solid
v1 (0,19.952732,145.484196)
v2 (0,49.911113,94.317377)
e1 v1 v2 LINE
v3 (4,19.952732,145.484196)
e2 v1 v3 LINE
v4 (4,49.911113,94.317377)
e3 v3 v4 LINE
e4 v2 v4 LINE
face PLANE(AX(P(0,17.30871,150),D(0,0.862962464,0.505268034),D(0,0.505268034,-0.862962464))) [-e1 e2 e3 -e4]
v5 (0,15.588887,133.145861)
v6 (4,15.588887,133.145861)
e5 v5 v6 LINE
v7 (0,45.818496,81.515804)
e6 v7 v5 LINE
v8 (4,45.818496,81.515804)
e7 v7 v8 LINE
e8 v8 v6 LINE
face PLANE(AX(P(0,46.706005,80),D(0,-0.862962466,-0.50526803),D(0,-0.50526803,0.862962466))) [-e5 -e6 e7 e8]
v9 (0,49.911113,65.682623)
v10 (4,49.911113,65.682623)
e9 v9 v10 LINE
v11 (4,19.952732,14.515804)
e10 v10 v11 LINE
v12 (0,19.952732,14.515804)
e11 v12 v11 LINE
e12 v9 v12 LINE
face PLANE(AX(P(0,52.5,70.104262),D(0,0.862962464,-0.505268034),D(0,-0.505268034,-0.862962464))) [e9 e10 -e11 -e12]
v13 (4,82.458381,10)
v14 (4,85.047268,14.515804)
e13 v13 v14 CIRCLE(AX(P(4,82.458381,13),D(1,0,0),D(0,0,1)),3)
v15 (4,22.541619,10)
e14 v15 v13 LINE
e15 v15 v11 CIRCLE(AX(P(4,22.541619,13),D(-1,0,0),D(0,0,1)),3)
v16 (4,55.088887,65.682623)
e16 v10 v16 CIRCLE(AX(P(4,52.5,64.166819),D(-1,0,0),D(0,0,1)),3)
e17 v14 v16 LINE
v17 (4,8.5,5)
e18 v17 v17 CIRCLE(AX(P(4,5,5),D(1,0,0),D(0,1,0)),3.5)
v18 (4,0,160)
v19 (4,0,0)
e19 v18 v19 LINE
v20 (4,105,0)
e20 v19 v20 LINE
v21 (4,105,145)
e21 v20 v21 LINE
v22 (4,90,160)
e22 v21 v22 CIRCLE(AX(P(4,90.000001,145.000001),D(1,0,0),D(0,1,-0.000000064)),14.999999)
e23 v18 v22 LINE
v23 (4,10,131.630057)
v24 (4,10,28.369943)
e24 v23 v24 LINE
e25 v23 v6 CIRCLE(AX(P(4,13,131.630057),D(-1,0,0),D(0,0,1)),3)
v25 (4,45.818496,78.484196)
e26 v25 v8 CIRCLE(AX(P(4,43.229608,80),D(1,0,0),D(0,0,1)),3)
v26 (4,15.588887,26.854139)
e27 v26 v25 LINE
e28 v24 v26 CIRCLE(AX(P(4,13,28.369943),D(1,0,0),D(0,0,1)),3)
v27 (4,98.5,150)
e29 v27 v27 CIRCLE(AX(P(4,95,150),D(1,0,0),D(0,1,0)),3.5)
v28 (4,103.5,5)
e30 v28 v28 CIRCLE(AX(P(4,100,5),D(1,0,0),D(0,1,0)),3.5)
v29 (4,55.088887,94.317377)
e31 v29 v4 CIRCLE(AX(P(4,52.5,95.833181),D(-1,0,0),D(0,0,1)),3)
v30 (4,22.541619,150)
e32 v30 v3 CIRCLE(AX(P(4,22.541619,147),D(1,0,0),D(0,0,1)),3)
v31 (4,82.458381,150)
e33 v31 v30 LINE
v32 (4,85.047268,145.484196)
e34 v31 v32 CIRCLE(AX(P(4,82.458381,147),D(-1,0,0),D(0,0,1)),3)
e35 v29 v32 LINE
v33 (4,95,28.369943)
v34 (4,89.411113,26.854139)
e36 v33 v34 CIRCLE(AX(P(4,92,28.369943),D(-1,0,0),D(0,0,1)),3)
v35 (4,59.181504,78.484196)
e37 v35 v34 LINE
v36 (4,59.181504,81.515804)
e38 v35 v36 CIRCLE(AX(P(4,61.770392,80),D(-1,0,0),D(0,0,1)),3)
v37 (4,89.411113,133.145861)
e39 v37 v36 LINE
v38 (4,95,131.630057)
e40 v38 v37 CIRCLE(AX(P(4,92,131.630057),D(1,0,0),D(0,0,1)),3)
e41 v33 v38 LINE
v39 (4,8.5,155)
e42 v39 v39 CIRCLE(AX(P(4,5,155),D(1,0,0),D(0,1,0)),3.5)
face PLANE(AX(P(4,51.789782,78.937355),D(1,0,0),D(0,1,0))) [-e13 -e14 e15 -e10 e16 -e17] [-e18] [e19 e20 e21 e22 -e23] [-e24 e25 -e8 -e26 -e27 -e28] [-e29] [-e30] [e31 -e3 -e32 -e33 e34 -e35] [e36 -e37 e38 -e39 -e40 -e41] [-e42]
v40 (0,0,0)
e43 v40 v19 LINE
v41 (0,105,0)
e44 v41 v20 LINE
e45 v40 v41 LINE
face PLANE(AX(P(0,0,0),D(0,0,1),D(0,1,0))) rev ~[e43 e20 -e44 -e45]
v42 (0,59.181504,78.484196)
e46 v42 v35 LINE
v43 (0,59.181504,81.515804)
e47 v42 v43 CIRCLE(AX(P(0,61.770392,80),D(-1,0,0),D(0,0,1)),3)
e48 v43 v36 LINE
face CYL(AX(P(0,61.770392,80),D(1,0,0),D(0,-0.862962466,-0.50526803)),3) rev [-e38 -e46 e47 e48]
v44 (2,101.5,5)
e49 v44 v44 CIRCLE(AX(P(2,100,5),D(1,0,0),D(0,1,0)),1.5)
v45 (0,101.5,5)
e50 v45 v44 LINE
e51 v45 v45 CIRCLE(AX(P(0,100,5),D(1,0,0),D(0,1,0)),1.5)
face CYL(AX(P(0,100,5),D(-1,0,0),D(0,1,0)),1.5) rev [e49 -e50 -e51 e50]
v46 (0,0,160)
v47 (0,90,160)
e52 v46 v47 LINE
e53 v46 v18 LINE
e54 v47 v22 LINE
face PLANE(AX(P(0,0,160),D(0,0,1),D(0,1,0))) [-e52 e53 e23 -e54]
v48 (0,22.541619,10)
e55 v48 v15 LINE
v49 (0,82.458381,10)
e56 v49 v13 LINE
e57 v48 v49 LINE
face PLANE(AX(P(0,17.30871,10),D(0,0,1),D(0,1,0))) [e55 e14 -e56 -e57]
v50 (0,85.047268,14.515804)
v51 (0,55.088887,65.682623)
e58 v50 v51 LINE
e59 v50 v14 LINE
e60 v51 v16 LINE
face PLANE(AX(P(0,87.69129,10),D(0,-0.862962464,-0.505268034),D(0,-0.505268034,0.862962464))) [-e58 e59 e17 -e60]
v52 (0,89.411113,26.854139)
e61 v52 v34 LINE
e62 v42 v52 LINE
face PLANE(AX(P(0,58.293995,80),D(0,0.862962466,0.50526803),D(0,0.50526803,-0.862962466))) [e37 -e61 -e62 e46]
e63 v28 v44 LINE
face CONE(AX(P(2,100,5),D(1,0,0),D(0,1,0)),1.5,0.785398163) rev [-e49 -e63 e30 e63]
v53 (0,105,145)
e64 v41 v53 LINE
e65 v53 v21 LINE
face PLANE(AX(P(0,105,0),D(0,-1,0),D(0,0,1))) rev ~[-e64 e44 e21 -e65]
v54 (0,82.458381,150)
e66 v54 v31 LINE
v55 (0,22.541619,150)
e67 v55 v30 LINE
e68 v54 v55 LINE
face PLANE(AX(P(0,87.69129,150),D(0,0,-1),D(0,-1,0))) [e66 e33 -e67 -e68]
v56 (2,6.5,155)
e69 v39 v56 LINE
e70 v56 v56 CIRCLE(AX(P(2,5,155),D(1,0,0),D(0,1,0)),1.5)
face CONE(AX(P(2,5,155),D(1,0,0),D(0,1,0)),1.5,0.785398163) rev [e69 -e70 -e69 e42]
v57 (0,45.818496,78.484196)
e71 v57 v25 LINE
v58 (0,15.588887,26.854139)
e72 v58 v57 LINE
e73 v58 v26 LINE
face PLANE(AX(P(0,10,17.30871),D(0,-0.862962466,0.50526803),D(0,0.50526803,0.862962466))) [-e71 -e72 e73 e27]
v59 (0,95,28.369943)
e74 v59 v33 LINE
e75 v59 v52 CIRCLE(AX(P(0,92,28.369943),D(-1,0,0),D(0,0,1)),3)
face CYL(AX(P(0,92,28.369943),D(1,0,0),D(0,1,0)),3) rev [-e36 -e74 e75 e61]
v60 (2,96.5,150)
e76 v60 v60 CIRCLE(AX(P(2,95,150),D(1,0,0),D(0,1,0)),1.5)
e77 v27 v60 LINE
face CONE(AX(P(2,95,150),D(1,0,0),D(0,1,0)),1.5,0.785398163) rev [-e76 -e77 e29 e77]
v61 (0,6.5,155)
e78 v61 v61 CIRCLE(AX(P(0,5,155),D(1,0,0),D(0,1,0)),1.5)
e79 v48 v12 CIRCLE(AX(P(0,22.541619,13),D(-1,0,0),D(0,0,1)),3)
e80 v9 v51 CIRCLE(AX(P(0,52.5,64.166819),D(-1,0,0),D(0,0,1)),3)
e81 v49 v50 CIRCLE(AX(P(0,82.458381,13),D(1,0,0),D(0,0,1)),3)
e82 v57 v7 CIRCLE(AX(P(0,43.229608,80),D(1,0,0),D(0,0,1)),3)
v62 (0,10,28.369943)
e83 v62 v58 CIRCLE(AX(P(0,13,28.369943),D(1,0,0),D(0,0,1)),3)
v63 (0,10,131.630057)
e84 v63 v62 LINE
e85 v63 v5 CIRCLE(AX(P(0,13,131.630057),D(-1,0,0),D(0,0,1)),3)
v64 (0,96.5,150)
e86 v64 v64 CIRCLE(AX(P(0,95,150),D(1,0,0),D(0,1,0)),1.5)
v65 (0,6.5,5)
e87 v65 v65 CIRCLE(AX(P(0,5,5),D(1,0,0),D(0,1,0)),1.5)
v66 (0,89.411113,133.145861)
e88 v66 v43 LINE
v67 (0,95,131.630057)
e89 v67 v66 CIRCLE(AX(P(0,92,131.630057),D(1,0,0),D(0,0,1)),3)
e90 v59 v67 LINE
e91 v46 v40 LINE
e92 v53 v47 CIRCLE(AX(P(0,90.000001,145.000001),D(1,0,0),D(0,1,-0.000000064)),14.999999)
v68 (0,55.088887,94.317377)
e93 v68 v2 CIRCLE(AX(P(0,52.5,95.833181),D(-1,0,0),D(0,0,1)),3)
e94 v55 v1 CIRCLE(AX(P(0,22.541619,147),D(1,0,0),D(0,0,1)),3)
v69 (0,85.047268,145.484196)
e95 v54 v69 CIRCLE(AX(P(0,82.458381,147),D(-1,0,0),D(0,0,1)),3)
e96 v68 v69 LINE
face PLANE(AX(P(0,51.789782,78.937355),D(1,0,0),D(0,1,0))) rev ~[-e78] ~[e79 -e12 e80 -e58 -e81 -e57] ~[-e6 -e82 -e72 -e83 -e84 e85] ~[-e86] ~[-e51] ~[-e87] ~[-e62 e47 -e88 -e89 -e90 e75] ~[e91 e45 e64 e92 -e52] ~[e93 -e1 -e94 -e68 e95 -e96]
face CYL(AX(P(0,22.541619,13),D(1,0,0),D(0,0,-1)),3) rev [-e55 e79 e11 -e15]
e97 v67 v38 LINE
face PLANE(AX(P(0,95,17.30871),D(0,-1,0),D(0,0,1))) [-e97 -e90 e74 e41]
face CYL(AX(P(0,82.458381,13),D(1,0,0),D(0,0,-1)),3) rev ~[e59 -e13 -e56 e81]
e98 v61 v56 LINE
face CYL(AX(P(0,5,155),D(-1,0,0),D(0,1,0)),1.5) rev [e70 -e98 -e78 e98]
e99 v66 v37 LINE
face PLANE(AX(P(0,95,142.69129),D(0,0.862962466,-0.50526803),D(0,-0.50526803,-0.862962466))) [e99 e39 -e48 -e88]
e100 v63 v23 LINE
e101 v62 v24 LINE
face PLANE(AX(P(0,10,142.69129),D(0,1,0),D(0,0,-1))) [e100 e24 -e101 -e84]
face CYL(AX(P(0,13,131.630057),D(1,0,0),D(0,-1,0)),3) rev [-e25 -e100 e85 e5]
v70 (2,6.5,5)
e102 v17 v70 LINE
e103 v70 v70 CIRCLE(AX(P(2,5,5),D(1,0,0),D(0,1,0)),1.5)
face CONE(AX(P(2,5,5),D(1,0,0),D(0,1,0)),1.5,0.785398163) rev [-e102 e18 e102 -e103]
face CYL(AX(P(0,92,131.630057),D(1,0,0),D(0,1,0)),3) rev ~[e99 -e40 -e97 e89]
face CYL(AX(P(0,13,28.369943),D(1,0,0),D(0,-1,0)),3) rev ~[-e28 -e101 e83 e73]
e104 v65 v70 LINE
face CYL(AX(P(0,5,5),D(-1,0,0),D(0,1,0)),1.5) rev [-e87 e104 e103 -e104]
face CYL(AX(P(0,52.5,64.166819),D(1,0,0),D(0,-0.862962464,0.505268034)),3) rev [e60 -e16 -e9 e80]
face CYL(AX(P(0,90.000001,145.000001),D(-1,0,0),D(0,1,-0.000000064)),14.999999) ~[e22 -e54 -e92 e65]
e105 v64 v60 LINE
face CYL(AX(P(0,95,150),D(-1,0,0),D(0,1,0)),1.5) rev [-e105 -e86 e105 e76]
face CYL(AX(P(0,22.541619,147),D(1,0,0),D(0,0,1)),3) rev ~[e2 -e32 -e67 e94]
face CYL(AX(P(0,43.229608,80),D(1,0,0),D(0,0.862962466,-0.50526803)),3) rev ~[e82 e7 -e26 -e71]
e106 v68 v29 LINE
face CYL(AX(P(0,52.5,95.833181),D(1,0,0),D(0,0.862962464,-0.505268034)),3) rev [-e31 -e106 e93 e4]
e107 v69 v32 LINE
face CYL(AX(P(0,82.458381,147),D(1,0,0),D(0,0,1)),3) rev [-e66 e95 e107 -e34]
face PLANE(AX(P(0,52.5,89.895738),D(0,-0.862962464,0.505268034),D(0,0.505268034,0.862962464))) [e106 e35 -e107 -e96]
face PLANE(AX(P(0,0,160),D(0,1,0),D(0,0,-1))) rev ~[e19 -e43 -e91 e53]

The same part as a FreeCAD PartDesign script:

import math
import FreeCAD as App
import Part
import Sketcher
Q = App.Units.Quantity


def edges_at(feature, points):
    """Names of the edges that pass closest to the given points."""
    edges = feature.Shape.Edges
    near = lambda p: min(range(len(edges)), key=lambda i: edges[i].distToShape(Part.Vertex(*p))[0])
    return sorted({f"Edge{near(p) + 1}" for p in points})

doc = App.newDocument("Part")
params = doc.addObject("Spreadsheet::Sheet", "Params")
for row, (alias, value) in enumerate([
    ("sketch1_diameter", "3 mm"),
    ("sketch1_radius", "14.999999 mm"),
    ("sketch1_width", "105 mm"),
    ("sketch1_height", "145 mm"),
    ("pad1_length", "4 mm"),
    ("fillet_radius", "3 mm"),
    ("chamfer_size", "2 mm"),
], start=1):
    params.set(f"A{row}", alias)
    params.set(f"B{row}", "=" + value)
    params.setAlias(f"B{row}", alias)

body = doc.addObject("PartDesign::Body", "Body")

sketch1 = body.newObject("Sketcher::SketchObject", "Sketch")
sketch1.AttachmentSupport = (doc.getObject("YZ_Plane"), [""])
sketch1.MapMode = "FlatFace"
sketch1.addGeometry([
    Part.LineSegment(App.Vector(0, 0, 0), App.Vector(105, 0, 0)),
    Part.LineSegment(App.Vector(105, 0, 0), App.Vector(105, 145, 0)),
    Part.ArcOfCircle(Part.Circle(App.Vector(90, 145, 0), App.Vector(0, 0, 1), 15), math.radians(0), math.radians(90)),
    Part.LineSegment(App.Vector(90, 160, 0), App.Vector(0, 160, 0)),
    Part.LineSegment(App.Vector(0, 160, 0), App.Vector(0, 0, 0)),
    Part.Circle(App.Vector(5, 5, 0), App.Vector(0, 0, 1), 1.5),
    Part.LineSegment(App.Vector(87.7, 10, 0), App.Vector(17.3, 10, 0)),
    Part.LineSegment(App.Vector(17.3, 10, 0), App.Vector(52.5, 70.1, 0)),
    Part.LineSegment(App.Vector(52.5, 70.1, 0), App.Vector(87.7, 10, 0)),
    Part.Circle(App.Vector(100, 5, 0), App.Vector(0, 0, 1), 1.5),
    Part.LineSegment(App.Vector(10, 17.3, 0), App.Vector(10, 142.7, 0)),
    Part.LineSegment(App.Vector(10, 142.7, 0), App.Vector(46.7, 80, 0)),
    Part.LineSegment(App.Vector(46.7, 80, 0), App.Vector(10, 17.3, 0)),
    Part.Circle(App.Vector(5, 155, 0), App.Vector(0, 0, 1), 1.5),
    Part.LineSegment(App.Vector(17.3, 150, 0), App.Vector(87.7, 150, 0)),
    Part.LineSegment(App.Vector(87.7, 150, 0), App.Vector(52.5, 89.9, 0)),
    Part.LineSegment(App.Vector(52.5, 89.9, 0), App.Vector(17.3, 150, 0)),
    Part.LineSegment(App.Vector(95, 142.7, 0), App.Vector(95, 17.3, 0)),
    Part.LineSegment(App.Vector(95, 17.3, 0), App.Vector(58.3, 80, 0)),
    Part.LineSegment(App.Vector(58.3, 80, 0), App.Vector(95, 142.7, 0)),
    Part.Circle(App.Vector(95, 150, 0), App.Vector(0, 0, 1), 1.5),
], False)
sketch1.addConstraint([
    Sketcher.Constraint("Coincident", 0, 2, 1, 1),
    Sketcher.Constraint("Tangent", 1, 2, 2, 1),
    Sketcher.Constraint("Tangent", 2, 2, 3, 1),
    Sketcher.Constraint("Coincident", 3, 2, 4, 1),
    Sketcher.Constraint("Coincident", 4, 2, 0, 1),
    Sketcher.Constraint("Coincident", 6, 2, 7, 1),
    Sketcher.Constraint("Coincident", 7, 2, 8, 1),
    Sketcher.Constraint("Coincident", 8, 2, 6, 1),
    Sketcher.Constraint("Coincident", 10, 2, 11, 1),
    Sketcher.Constraint("Coincident", 11, 2, 12, 1),
    Sketcher.Constraint("Coincident", 12, 2, 10, 1),
    Sketcher.Constraint("Coincident", 14, 2, 15, 1),
    Sketcher.Constraint("Coincident", 15, 2, 16, 1),
    Sketcher.Constraint("Coincident", 16, 2, 14, 1),
    Sketcher.Constraint("Coincident", 17, 2, 18, 1),
    Sketcher.Constraint("Coincident", 18, 2, 19, 1),
    Sketcher.Constraint("Coincident", 19, 2, 17, 1),
    Sketcher.Constraint("Horizontal", 0),
    Sketcher.Constraint("Vertical", 1),
    Sketcher.Constraint("Horizontal", 3),
    Sketcher.Constraint("Vertical", 4),
    Sketcher.Constraint("Horizontal", 6),
    Sketcher.Constraint("Vertical", 10),
    Sketcher.Constraint("Horizontal", 14),
    Sketcher.Constraint("Vertical", 17),
    Sketcher.Constraint("Coincident", 4, 2, -1, 1),
    Sketcher.Constraint("Equal", 5, 9),
    Sketcher.Constraint("Equal", 9, 13),
    Sketcher.Constraint("Equal", 13, 20),
    Sketcher.Constraint("Parallel", 8, 11),
    Sketcher.Constraint("Parallel", 7, 12),
    Sketcher.Constraint("Parallel", 12, 15),
    Sketcher.Constraint("Parallel", 11, 16),
    Sketcher.Constraint("Parallel", 16, 18),
    Sketcher.Constraint("Parallel", 15, 19),
    Sketcher.Constraint("Horizontal", 5, 3, 9, 3),
    Sketcher.Constraint("Horizontal", 20, 3, 14, 2),
    Sketcher.Constraint("Horizontal", 12, 2, 17, 2),
    Sketcher.Constraint("Horizontal", 11, 2, 18, 2),
    Sketcher.Constraint("Horizontal", 10, 2, 19, 2),
    Sketcher.Constraint("Vertical", 5, 3, 13, 3),
    Sketcher.Constraint("Vertical", 8, 2, 14, 2),
    Sketcher.Constraint("Vertical", 7, 2, 15, 2),
    Sketcher.Constraint("Vertical", 20, 3, 17, 2),
    Sketcher.Constraint("Diameter", 5, Q("3 mm")),
    Sketcher.Constraint("Radius", 2, Q("14.999999 mm")),
    Sketcher.Constraint("DistanceX", 0, 1, 0, 2, Q("105 mm")),
    Sketcher.Constraint("DistanceY", 1, 1, 1, 2, Q("145 mm")),
    Sketcher.Constraint("DistanceX", -1, 1, 5, 3, Q("5 mm")),
    Sketcher.Constraint("DistanceY", -1, 1, 5, 3, Q("5 mm")),
    Sketcher.Constraint("DistanceX", -1, 1, 9, 3, Q("100 mm")),
    Sketcher.Constraint("DistanceY", -1, 1, 13, 3, Q("155 mm")),
    Sketcher.Constraint("DistanceX", -1, 1, 20, 3, Q("95 mm")),
    Sketcher.Constraint("DistanceY", -1, 1, 20, 3, Q("150 mm")),
    Sketcher.Constraint("DistanceY", -1, 1, 6, 2, Q("10 mm")),
    Sketcher.Constraint("DistanceX", -1, 1, 10, 2, Q("10 mm")),
    Sketcher.Constraint("DistanceY", -1, 1, 11, 2, Q("80 mm")),
    Sketcher.Constraint("DistanceX", -1, 1, 7, 2, Q("52.5 mm")),
    Sketcher.Constraint("Distance", 11, Q("72.646601 mm")),
    Sketcher.Constraint("DistanceX", 6, 2, 6, 1, Q("70.38258 mm")),
    Sketcher.Constraint("DistanceY", 10, 1, 10, 2, Q("125.38258 mm")),
])
sketch1.setExpression("Constraints[44]", "Params.sketch1_diameter")
sketch1.setExpression("Constraints[45]", "Params.sketch1_radius")
sketch1.setExpression("Constraints[46]", "Params.sketch1_width")
sketch1.setExpression("Constraints[47]", "Params.sketch1_height")
pad1 = body.newObject("PartDesign::Pad", "Pad")
pad1.Profile = sketch1
pad1.setExpression("Length", "Params.pad1_length")
doc.recompute()

fillet = body.newObject("PartDesign::Fillet", "Fillet")
fillet.Base = (pad1, edges_at(pad1, [
    (2, 52.5, 89.896),
    (2, 58.294, 80),
    (2, 52.5, 70.104),
    (2, 46.706, 80),
    (2, 17.309, 150),
    (2, 87.691, 150),
    (2, 10, 142.691),
    (2, 95, 142.691),
    (2, 10, 17.309),
    (2, 17.309, 10),
    (2, 95, 17.309),
    (2, 87.691, 10),
]))
fillet.setExpression("Radius", "Params.fillet_radius")
doc.recompute()

chamfer = body.newObject("PartDesign::Chamfer", "Chamfer")
chamfer.Base = (fillet, edges_at(fillet, [
    (4, 3.5, 155),
    (4, 93.5, 150),
    (4, 98.5, 5),
    (4, 3.5, 5),
]))
chamfer.setExpression("Size", "Params.chamfer_size")

doc.recompute()
